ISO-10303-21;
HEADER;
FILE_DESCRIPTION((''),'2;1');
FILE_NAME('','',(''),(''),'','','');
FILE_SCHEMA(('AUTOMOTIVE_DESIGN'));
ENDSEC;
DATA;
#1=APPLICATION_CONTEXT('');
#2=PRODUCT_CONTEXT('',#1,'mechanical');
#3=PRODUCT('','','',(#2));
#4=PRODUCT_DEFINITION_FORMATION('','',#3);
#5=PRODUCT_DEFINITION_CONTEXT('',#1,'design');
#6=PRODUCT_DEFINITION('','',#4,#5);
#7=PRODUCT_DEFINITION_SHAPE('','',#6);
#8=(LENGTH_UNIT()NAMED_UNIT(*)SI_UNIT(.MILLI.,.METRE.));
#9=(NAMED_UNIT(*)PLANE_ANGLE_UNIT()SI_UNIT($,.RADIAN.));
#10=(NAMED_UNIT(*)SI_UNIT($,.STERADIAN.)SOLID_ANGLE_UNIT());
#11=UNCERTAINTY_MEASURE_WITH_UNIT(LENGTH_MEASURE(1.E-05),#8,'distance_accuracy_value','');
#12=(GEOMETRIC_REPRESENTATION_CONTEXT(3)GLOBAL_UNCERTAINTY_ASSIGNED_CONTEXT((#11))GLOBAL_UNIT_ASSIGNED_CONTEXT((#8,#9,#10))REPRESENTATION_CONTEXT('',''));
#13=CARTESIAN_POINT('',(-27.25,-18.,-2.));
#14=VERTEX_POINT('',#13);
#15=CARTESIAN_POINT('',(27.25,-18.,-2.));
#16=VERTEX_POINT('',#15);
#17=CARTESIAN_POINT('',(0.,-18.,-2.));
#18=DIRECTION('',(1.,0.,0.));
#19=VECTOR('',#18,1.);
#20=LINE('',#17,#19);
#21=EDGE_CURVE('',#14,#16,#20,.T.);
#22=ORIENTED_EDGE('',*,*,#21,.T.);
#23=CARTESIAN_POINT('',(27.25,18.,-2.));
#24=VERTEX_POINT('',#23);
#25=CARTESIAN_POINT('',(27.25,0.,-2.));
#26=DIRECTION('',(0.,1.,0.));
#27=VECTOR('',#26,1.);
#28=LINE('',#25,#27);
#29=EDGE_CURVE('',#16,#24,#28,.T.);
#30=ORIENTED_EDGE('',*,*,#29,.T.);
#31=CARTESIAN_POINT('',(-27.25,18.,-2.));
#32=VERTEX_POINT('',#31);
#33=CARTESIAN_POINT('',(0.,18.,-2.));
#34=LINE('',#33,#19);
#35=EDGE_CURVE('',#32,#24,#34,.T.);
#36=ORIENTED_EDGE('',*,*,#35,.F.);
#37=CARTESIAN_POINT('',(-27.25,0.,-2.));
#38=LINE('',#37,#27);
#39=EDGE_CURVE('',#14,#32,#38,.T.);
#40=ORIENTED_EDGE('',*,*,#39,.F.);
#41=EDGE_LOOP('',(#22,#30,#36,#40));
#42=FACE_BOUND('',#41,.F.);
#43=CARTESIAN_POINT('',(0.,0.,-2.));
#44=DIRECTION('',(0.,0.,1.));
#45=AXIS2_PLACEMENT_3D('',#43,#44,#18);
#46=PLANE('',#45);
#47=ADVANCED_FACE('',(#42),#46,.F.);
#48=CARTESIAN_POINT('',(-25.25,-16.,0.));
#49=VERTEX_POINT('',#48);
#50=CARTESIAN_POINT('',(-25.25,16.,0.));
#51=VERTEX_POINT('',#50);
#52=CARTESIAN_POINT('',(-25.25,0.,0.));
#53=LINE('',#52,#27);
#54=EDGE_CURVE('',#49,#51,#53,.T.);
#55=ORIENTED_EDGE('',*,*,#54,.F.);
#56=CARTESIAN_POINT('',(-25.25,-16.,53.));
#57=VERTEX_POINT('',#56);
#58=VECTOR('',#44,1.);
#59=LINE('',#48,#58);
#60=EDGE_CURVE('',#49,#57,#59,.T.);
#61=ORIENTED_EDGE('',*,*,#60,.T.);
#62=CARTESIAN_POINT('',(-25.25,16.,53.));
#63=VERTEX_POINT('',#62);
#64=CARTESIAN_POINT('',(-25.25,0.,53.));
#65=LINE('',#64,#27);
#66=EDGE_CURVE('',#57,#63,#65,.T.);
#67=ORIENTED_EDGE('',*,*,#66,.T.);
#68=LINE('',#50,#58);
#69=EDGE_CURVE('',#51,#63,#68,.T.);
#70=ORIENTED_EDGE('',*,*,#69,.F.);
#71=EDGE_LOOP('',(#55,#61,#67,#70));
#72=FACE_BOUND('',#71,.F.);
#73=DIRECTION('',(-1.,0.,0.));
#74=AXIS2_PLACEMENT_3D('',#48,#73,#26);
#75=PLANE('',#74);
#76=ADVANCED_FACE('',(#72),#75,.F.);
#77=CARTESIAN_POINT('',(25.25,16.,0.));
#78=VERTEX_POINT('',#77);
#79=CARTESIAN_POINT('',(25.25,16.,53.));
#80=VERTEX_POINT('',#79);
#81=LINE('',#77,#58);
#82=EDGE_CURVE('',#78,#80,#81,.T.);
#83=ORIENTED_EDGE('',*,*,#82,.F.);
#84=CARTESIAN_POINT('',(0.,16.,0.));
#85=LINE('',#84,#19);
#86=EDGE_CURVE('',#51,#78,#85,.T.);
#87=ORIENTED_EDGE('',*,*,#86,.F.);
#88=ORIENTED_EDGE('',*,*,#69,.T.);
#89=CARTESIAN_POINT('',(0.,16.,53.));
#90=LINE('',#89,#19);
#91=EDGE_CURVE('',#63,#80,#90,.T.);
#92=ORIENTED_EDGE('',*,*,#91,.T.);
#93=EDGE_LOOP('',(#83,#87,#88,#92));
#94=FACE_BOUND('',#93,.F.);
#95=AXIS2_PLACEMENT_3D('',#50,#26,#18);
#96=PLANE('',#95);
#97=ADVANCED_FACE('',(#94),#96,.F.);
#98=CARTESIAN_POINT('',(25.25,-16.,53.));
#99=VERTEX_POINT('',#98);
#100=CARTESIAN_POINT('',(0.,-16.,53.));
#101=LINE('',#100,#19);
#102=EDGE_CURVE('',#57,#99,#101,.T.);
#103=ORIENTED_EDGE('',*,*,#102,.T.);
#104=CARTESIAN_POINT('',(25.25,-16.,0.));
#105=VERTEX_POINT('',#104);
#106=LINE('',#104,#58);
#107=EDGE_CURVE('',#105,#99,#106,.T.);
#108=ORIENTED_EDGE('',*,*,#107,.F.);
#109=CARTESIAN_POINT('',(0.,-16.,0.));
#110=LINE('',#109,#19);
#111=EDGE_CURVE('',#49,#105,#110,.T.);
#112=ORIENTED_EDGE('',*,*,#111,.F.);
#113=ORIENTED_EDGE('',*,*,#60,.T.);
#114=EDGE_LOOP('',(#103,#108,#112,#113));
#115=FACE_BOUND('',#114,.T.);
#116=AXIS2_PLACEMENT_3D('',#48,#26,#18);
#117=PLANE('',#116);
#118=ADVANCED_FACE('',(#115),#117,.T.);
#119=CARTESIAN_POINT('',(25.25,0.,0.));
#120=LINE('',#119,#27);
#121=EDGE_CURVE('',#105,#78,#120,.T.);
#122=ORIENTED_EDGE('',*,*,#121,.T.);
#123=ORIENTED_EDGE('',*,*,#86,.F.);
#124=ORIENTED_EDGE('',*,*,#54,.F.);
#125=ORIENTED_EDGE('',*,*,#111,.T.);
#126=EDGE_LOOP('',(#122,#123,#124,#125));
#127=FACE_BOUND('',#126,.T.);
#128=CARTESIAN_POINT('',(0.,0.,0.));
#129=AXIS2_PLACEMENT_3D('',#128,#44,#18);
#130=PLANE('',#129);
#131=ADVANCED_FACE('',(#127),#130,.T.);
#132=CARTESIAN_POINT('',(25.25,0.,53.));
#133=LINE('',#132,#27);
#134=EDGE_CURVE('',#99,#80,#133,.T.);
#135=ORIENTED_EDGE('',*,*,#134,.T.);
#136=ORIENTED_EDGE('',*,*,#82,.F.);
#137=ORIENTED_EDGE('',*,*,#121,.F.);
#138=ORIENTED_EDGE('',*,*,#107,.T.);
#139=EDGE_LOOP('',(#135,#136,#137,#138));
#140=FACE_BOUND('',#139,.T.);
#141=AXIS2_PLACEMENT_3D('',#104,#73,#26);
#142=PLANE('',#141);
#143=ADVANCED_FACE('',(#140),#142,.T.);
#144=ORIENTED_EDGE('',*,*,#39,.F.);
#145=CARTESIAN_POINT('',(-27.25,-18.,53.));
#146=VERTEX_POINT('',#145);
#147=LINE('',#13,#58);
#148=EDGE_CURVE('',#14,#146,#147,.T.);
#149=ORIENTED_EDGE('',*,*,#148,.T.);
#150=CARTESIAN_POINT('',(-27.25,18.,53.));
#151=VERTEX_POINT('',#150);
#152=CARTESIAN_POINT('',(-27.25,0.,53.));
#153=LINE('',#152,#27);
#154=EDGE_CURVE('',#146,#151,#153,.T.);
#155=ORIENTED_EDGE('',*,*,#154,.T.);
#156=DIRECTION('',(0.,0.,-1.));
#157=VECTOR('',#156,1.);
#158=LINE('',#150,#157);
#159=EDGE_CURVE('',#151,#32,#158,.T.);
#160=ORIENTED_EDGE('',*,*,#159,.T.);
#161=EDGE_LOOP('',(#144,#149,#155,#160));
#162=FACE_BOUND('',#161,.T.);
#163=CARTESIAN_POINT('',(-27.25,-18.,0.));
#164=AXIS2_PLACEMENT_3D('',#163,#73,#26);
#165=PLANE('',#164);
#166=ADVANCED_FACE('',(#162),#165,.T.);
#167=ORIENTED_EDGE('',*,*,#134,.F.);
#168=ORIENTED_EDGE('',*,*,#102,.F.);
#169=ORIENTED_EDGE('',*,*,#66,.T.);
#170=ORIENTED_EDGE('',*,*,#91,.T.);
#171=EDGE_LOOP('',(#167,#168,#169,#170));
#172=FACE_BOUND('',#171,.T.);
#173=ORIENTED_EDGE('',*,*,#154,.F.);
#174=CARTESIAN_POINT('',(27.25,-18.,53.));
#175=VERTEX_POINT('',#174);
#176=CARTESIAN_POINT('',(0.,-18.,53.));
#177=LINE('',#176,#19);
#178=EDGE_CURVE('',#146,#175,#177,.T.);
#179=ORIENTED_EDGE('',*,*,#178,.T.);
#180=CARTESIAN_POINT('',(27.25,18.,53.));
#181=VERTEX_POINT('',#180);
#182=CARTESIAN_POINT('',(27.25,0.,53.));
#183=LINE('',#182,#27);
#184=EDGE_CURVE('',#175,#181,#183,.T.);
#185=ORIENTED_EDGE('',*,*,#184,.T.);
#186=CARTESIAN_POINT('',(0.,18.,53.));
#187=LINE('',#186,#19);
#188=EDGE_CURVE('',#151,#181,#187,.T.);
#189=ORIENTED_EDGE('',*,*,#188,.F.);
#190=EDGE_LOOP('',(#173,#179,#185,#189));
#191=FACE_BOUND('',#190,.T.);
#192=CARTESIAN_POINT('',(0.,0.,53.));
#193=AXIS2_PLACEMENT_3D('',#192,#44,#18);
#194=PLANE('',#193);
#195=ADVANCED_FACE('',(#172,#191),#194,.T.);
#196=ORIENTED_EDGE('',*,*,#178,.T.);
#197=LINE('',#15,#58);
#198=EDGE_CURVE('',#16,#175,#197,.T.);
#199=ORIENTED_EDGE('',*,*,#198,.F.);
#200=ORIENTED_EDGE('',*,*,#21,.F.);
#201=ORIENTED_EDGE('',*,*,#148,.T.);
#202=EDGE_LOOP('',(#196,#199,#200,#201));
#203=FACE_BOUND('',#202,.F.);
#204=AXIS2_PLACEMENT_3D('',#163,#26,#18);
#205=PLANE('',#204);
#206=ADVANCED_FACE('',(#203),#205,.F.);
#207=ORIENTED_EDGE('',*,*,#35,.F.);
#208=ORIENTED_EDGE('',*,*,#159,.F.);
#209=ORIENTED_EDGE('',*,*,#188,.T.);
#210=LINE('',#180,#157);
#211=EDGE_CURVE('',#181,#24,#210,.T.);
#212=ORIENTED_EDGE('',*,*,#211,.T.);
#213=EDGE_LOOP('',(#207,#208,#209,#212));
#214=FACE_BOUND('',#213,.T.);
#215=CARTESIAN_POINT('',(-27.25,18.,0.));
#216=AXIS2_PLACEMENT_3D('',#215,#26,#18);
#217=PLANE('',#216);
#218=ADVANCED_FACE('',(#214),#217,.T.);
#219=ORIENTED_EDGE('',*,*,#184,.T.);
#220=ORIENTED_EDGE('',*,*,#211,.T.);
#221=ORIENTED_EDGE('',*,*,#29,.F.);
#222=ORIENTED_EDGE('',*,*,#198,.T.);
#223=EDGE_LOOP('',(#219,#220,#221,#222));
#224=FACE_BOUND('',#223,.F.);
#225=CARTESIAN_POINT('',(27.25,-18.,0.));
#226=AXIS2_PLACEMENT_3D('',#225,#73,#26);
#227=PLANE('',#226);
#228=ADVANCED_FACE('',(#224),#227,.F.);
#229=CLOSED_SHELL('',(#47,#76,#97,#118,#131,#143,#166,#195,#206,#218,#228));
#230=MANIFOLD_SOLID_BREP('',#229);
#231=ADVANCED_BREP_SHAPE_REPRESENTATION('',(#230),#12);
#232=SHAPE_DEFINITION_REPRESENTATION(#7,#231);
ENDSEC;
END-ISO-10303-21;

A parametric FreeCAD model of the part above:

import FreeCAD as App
import Part
import Sketcher
from FreeCAD import Vector

doc = App.newDocument("Part")
params = doc.addObject("Spreadsheet::Sheet", "Params")
for row, (alias, value) in enumerate([
    ("sketch1_height", "36 mm"),
    ("sketch1_width", "54.5 mm"),
    ("pad1_length", "2 mm"),
    ("sketch2_height", "36 mm"),
    ("sketch2_height2", "32 mm"),
    ("sketch2_width", "54.5 mm"),
    ("sketch2_width2", "50.5 mm"),
    ("pad2_length", "53 mm"),
], start=1):
    params.set(f"A{row}", alias)
    params.set(f"B{row}", "=" + value)
    params.setAlias(f"B{row}", alias)

body = doc.addObject("PartDesign::Body", "Body")

# Sketch on XY plane
sketch1 = body.newObject("Sketcher::SketchObject", "Sketch")
sketch1.AttachmentSupport = (doc.getObject("XY_Plane"), [""])
sketch1.MapMode = "FlatFace"
sketch1.addGeometry([
    Part.LineSegment(Vector(-27, 18, 0), Vector(-27, -18, 0)),
    Part.LineSegment(Vector(-27, -18, 0), Vector(27, -18, 0)),
    Part.LineSegment(Vector(27, -18, 0), Vector(27, 18, 0)),
    Part.LineSegment(Vector(27, 18, 0), Vector(-27, 18, 0)),
], False)
sketch1.addConstraint([
    Sketcher.Constraint("Coincident", 0, 2, 1, 1),
    Sketcher.Constraint("Coincident", 1, 2, 2, 1),
    Sketcher.Constraint("Coincident", 2, 2, 3, 1),
    Sketcher.Constraint("Coincident", 3, 2, 0, 1),
    Sketcher.Constraint("Vertical", 0),
    Sketcher.Constraint("Horizontal", 1),
    Sketcher.Constraint("Vertical", 2),
    Sketcher.Constraint("Horizontal", 3),
    Sketcher.Constraint("Symmetric", 0, 2, 2, 2, -1, 1),
    Sketcher.Constraint("DistanceY", 0, 2, 0, 1, 36.0),
    Sketcher.Constraint("DistanceX", 1, 1, 1, 2, 54.5),
])
sketch1.setExpression("Constraints[9]", "Params.sketch1_height")
sketch1.setExpression("Constraints[10]", "Params.sketch1_width")
pad1 = body.newObject("PartDesign::Pad", "Pad")
pad1.Profile = sketch1
pad1.setExpression("Length", "Params.pad1_length")
pad1.Reversed = True

# Sketch on XY plane
sketch2 = body.newObject("Sketcher::SketchObject", "Sketch001")
sketch2.AttachmentSupport = (doc.getObject("XY_Plane"), [""])
sketch2.MapMode = "FlatFace"
sketch2.addGeometry([
    Part.LineSegment(Vector(-27, 18, 0), Vector(-27, -18, 0)),  # 0
    Part.LineSegment(Vector(-27, -18, 0), Vector(27, -18, 0)),  # 1
    Part.LineSegment(Vector(27, -18, 0), Vector(27, 18, 0)),  # 2
    Part.LineSegment(Vector(27, 18, 0), Vector(-27, 18, 0)),  # 3
    Part.LineSegment(Vector(25, -16, 0), Vector(-25, -16, 0)),  # 4
    Part.LineSegment(Vector(-25, -16, 0), Vector(-25, 16, 0)),  # 5
    Part.LineSegment(Vector(-25, 16, 0), Vector(25, 16, 0)),  # 6
    Part.LineSegment(Vector(25, 16, 0), Vector(25, -16, 0)),  # 7
], False)
sketch2.addConstraint([
    Sketcher.Constraint("Coincident", 0, 2, 1, 1),
    Sketcher.Constraint("Coincident", 1, 2, 2, 1),
    Sketcher.Constraint("Coincident", 2, 2, 3, 1),
    Sketcher.Constraint("Coincident", 3, 2, 0, 1),
    Sketcher.Constraint("Coincident", 4, 2, 5, 1),
    Sketcher.Constraint("Coincident", 5, 2, 6, 1),
    Sketcher.Constraint("Coincident", 6, 2, 7, 1),
    Sketcher.Constraint("Coincident", 7, 2, 4, 1),
    Sketcher.Constraint("Vertical", 0),
    Sketcher.Constraint("Horizontal", 1),
    Sketcher.Constraint("Vertical", 2),
    Sketcher.Constraint("Horizontal", 3),
    Sketcher.Constraint("Horizontal", 4),
    Sketcher.Constraint("Vertical", 5),
    Sketcher.Constraint("Horizontal", 6),
    Sketcher.Constraint("Vertical", 7),
    Sketcher.Constraint("Symmetric", 0, 2, 2, 2, -1, 1),
    Sketcher.Constraint("Symmetric", 4, 2, 6, 2, -1, 1),
    Sketcher.Constraint("DistanceY", 0, 2, 0, 1, 36.0),
    Sketcher.Constraint("DistanceY", 5, 1, 5, 2, 32.0),
    Sketcher.Constraint("DistanceX", 1, 1, 1, 2, 54.5),
    Sketcher.Constraint("DistanceX", 4, 2, 4, 1, 50.5),
])
sketch2.setExpression("Constraints[18]", "Params.sketch2_height")
sketch2.setExpression("Constraints[19]", "Params.sketch2_height2")
sketch2.setExpression("Constraints[20]", "Params.sketch2_width")
sketch2.setExpression("Constraints[21]", "Params.sketch2_width2")
pad2 = body.newObject("PartDesign::Pad", "Pad001")
pad2.Profile = sketch2
pad2.setExpression("Length", "Params.pad2_length")

doc.recompute()
